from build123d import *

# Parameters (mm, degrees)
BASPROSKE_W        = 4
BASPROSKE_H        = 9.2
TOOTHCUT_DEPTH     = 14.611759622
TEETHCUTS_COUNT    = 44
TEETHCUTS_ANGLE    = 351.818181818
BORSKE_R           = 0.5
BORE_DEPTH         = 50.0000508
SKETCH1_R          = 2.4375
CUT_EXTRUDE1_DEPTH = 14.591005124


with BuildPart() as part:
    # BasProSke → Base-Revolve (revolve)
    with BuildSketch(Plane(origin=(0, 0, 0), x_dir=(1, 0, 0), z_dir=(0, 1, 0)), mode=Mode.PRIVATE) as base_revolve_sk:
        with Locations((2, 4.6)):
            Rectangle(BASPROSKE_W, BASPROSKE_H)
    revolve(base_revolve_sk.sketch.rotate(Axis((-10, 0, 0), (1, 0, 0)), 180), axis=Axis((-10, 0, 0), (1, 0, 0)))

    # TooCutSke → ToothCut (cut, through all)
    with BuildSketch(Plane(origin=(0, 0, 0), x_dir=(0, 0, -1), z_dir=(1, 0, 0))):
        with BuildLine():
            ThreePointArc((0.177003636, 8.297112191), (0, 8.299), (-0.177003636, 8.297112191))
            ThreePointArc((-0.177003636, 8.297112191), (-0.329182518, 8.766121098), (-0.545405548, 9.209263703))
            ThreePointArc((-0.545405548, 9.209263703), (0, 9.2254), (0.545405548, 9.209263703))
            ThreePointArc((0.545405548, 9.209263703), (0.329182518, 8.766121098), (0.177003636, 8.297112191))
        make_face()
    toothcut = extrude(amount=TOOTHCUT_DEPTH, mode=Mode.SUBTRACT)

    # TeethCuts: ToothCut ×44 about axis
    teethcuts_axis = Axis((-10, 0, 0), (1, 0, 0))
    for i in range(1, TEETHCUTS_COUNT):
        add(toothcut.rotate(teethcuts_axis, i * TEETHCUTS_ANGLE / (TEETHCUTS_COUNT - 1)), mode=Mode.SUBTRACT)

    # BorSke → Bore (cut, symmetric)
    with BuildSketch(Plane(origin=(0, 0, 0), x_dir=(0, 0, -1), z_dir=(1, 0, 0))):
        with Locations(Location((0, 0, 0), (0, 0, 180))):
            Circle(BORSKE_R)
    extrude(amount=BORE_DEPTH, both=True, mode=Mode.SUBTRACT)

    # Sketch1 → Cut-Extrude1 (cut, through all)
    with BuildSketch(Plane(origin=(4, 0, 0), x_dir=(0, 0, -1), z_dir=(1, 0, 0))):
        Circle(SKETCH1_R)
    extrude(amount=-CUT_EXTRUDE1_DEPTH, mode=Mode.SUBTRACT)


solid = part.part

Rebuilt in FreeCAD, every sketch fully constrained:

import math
import FreeCAD as App
import Part
import Sketcher
Q = App.Units.Quantity


def add_polygon(sketch, points):
    """Adds a closed chain of lines whose ends are joined by coincident constraints."""
    first, n = sketch.GeometryCount, len(points)
    for a, b in zip(points, points[1:] + points[:1]):
        sketch.addGeometry(Part.LineSegment(App.Vector(*a, 0), App.Vector(*b, 0)), False)
    for i in range(n):
        sketch.addConstraint(Sketcher.Constraint("Coincident", first + i, 2, first + (i + 1) % n, 1))

doc = App.newDocument("Part")
body = doc.addObject("PartDesign::Body", "Body")

sketch1 = body.newObject("Sketcher::SketchObject", "Sketch")
sketch1.AttachmentSupport = (doc.getObject("XZ_Plane"), [""])
sketch1.MapMode = "FlatFace"
add_polygon(sketch1, [(0, -9.2), (0, 0), (4, 0), (4, -9.2)])
sketch1.addConstraint(Sketcher.Constraint("Vertical", 0))
sketch1.addConstraint(Sketcher.Constraint("Horizontal", 1))
sketch1.addConstraint(Sketcher.Constraint("Vertical", 2))
sketch1.addConstraint(Sketcher.Constraint("Horizontal", 3))
sketch1.addConstraint(Sketcher.Constraint("Coincident", 0, 2, -1, 1))
sketch1.addConstraint(Sketcher.Constraint("DistanceX", 1, 1, 1, 2, Q("4 mm")))
sketch1.addConstraint(Sketcher.Constraint("DistanceY", 0, 1, 0, 2, Q("9.2 mm")))
revolution = body.newObject("PartDesign::Revolution", "Revolution")
revolution.Profile = sketch1
revolution.ReferenceAxis = (sketch1, ["H_Axis"])
revolution.Angle = 360

sketch2 = body.newObject("Sketcher::SketchObject", "Sketch001")
sketch2.AttachmentSupport = (doc.getObject("YZ_Plane"), [""])
sketch2.MapMode = "FlatFace"
sketch2.addGeometry(Part.ArcOfCircle(Part.Circle(App.Vector(0, 0, 0), App.Vector(0, 0, 1), 8.3), math.radians(-1.22), math.radians(1.22)), False)
sketch2.addGeometry(Part.ArcOfCircle(Part.Circle(App.Vector(7.45, -3.59, 0), App.Vector(0, 0, 1), 3.52), math.radians(59.97), math.radians(76.04)), False)
sketch2.addGeometry(Part.ArcOfCircle(Part.Circle(App.Vector(0, 0, 0), App.Vector(0, 0, 1), 9.23), math.radians(-3.39), math.radians(3.39)), False)
sketch2.addGeometry(Part.ArcOfCircle(Part.Circle(App.Vector(7.45, 3.59, 0), App.Vector(0, 0, 1), 3.52), math.radians(-76.04), math.radians(-59.97)), False)
sketch2.addConstraint(Sketcher.Constraint("Coincident", 0, 1, 1, 2))
sketch2.addConstraint(Sketcher.Constraint("Coincident", 1, 1, 2, 1))
sketch2.addConstraint(Sketcher.Constraint("Coincident", 2, 2, 3, 2))
sketch2.addConstraint(Sketcher.Constraint("Coincident", 3, 1, 0, 2))
sketch2.addConstraint(Sketcher.Constraint("Coincident", 0, 3, -1, 1))
sketch2.addConstraint(Sketcher.Constraint("Coincident", 2, 3, -1, 1))
sketch2.addConstraint(Sketcher.Constraint("Equal", 1, 3))
sketch2.addConstraint(Sketcher.Constraint("Symmetric", 1, 3, 3, 3, -1))
sketch2.addConstraint(Sketcher.Constraint("Radius", 1, Q("3.52 mm")))
sketch2.addConstraint(Sketcher.Constraint("Radius", 0, Q("8.298999 mm")))
sketch2.addConstraint(Sketcher.Constraint("Radius", 2, Q("9.2254 mm")))
sketch2.addConstraint(Sketcher.Constraint("DistanceY", 1, 1, 0, 1, Q("0.368402 mm")))
sketch2.addConstraint(Sketcher.Constraint("DistanceX", -1, 1, 1, 3, Q("7.44791 mm")))
pocket1 = body.newObject("PartDesign::Pocket", "Pocket")
pocket1.Profile = sketch2
pocket1.Type = "ThroughAll"
pocket1.Reversed = True
doc.recompute()

polarpattern = body.newObject("PartDesign::PolarPattern", "PolarPattern")
polarpattern.Originals = [pocket1]
polarpattern.Axis = (doc.getObject("X_Axis"), [""])
polarpattern.Angle = 360
polarpattern.Occurrences = 44
body.Tip = polarpattern

sketch3 = body.newObject("Sketcher::SketchObject", "Sketch002")
sketch3.AttachmentSupport = (doc.getObject("YZ_Plane"), [""])
sketch3.MapMode = "FlatFace"
sketch3.addGeometry(Part.Circle(App.Vector(0, 0, 0), App.Vector(0, 0, 1), 0.5), False)
sketch3.addConstraint(Sketcher.Constraint("Coincident", 0, 3, -1, 1))
sketch3.addConstraint(Sketcher.Constraint("Diameter", 0, Q("1 mm")))
pocket2 = body.newObject("PartDesign::Pocket", "Pocket001")
pocket2.Profile = sketch3
pocket2.Length = 100.000102
pocket2.Midplane = True

sketch4 = body.newObject("Sketcher::SketchObject", "Sketch003")
sketch4.AttachmentSupport = (doc.getObject("YZ_Plane"), [""])
sketch4.MapMode = "FlatFace"
sketch4.AttachmentOffset = App.Placement(App.Vector(0, 0, 4), App.Rotation())
sketch4.addGeometry(Part.Circle(App.Vector(0, 0, 0), App.Vector(0, 0, 1), 2.4), False)
sketch4.addConstraint(Sketcher.Constraint("Coincident", 0, 3, -1, 1))
sketch4.addConstraint(Sketcher.Constraint("Diameter", 0, Q("4.875 mm")))
pocket3 = body.newObject("PartDesign::Pocket", "Pocket002")
pocket3.Profile = sketch4
pocket3.Type = "ThroughAll"

doc.recompute()
